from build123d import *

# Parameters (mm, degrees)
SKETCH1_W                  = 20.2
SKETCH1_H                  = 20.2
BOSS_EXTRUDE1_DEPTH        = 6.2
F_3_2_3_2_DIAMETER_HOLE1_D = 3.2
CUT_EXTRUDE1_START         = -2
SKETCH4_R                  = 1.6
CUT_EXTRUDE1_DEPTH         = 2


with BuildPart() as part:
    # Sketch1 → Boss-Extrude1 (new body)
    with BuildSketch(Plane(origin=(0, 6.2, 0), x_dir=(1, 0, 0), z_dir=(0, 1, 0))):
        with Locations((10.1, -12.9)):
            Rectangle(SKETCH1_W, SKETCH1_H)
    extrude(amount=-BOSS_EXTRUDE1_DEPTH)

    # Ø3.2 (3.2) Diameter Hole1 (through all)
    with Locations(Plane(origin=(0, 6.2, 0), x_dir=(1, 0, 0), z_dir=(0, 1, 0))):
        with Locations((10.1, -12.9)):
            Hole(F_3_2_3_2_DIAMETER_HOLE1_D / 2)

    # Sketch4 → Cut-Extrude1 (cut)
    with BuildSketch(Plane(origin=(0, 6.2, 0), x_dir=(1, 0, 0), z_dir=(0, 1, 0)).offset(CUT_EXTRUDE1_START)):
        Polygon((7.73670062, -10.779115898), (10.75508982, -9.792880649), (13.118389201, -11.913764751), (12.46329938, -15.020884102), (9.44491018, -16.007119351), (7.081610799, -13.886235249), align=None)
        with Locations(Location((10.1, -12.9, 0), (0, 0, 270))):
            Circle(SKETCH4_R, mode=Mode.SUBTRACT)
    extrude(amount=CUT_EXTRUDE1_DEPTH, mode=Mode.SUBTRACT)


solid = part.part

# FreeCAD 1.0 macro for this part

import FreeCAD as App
import Part
import Sketcher
Q = App.Units.Quantity

doc = App.newDocument("Part")
body = doc.addObject("PartDesign::Body", "Body")

# Sketch on XZ plane
sketch1 = body.newObject("Sketcher::SketchObject", "Sketch")
sketch1.AttachmentSupport = (doc.getObject("XZ_Plane"), [""])
sketch1.MapMode = "FlatFace"
sketch1.AttachmentOffset = App.Placement(App.Vector(0, 0, -6.2), App.Rotation())
sketch1.addGeometry(Part.LineSegment(App.Vector(0, 3, 0), App.Vector(0, 23, 0)), False)
sketch1.addGeometry(Part.LineSegment(App.Vector(0, 23, 0), App.Vector(20, 23, 0)), False)
sketch1.addGeometry(Part.LineSegment(App.Vector(20, 23, 0), App.Vector(20, 3, 0)), False)
sketch1.addGeometry(Part.LineSegment(App.Vector(20, 3, 0), App.Vector(0, 3, 0)), False)
sketch1.addConstraint(Sketcher.Constraint("Coincident", 0, 2, 1, 1))
sketch1.addConstraint(Sketcher.Constraint("Coincident", 1, 2, 2, 1))
sketch1.addConstraint(Sketcher.Constraint("Coincident", 2, 2, 3, 1))
sketch1.addConstraint(Sketcher.Constraint("Coincident", 3, 2, 0, 1))
sketch1.addConstraint(Sketcher.Constraint("Vertical", 0))
sketch1.addConstraint(Sketcher.Constraint("Horizontal", 1))
sketch1.addConstraint(Sketcher.Constraint("Vertical", 2))
sketch1.addConstraint(Sketcher.Constraint("Horizontal", 3))
sketch1.addConstraint(Sketcher.Constraint("PointOnObject", 0, 2, -2))
sketch1.addConstraint(Sketcher.Constraint("Equal", 3, 0))
sketch1.addConstraint(Sketcher.Constraint("DistanceX", 1, 1, 1, 2, Q("20.2 mm")))
sketch1.addConstraint(Sketcher.Constraint("DistanceY", -1, 1, 0, 2, Q("23 mm")))
pad1 = body.newObject("PartDesign::Pad", "Pad")
pad1.Profile = sketch1
pad1.Length = 6.2

# Sketch on XZ plane
sketch2 = body.newObject("Sketcher::SketchObject", "Sketch001")
sketch2.AttachmentSupport = (doc.getObject("XZ_Plane"), [""])
sketch2.MapMode = "FlatFace"
sketch2.AttachmentOffset = App.Placement(App.Vector(0, 0, -6.2), App.Rotation())
sketch2.addGeometry(Part.Circle(App.Vector(10.1, 12.9, 0), App.Vector(0, 0, 1), 1.6), False)
sketch2.addConstraint(Sketcher.Constraint("Diameter", 0, Q("3.2 mm")))
sketch2.addConstraint(Sketcher.Constraint("DistanceX", -1, 1, 0, 3, Q("10.1 mm")))
sketch2.addConstraint(Sketcher.Constraint("DistanceY", -1, 1, 0, 3, Q("12.9 mm")))
doc.recompute()
hole = body.newObject("PartDesign::Hole", "Hole")
hole.Profile = sketch2
hole.ThreadType = "None"
hole.Diameter = 3.2
hole.DepthType = "ThroughAll"
hole.Reversed = True

# Sketch on XZ plane
sketch3 = body.newObject("Sketcher::SketchObject", "Sketch002")
sketch3.AttachmentSupport = (doc.getObject("XZ_Plane"), [""])
sketch3.MapMode = "FlatFace"
sketch3.AttachmentOffset = App.Placement(App.Vector(0, 0, -4.2), App.Rotation())
sketch3.addGeometry(Part.LineSegment(App.Vector(10.8, 9.8, 0), App.Vector(7.7, 10.8, 0)), False)
sketch3.addGeometry(Part.LineSegment(App.Vector(7.7, 10.8, 0), App.Vector(7.1, 13.9, 0)), False)
sketch3.addGeometry(Part.LineSegment(App.Vector(7.1, 13.9, 0), App.Vector(9.4, 16, 0)), False)
sketch3.addGeometry(Part.LineSegment(App.Vector(9.4, 16, 0), App.Vector(12.5, 15, 0)), False)
sketch3.addGeometry(Part.LineSegment(App.Vector(12.5, 15, 0), App.Vector(13.1, 11.9, 0)), False)
sketch3.addGeometry(Part.LineSegment(App.Vector(13.1, 11.9, 0), App.Vector(10.8, 9.8, 0)), False)
sketch3.addGeometry(Part.Circle(App.Vector(10.1, 12.9, 0), App.Vector(0, 0, 1), 1.6), False)
sketch3.addConstraint(Sketcher.Constraint("Coincident", 0, 2, 1, 1))
sketch3.addConstraint(Sketcher.Constraint("Coincident", 1, 2, 2, 1))
sketch3.addConstraint(Sketcher.Constraint("Coincident", 2, 2, 3, 1))
sketch3.addConstraint(Sketcher.Constraint("Coincident", 3, 2, 4, 1))
sketch3.addConstraint(Sketcher.Constraint("Coincident", 4, 2, 5, 1))
sketch3.addConstraint(Sketcher.Constraint("Coincident", 5, 2, 0, 1))
sketch3.addConstraint(Sketcher.Constraint("Parallel", 0, 3))
sketch3.addConstraint(Sketcher.Constraint("Parallel", 1, 4))
sketch3.addConstraint(Sketcher.Constraint("Parallel", 2, 5))
sketch3.addConstraint(Sketcher.Constraint("Equal", 0, 1))
sketch3.addConstraint(Sketcher.Constraint("Equal", 1, 2))
sketch3.addConstraint(Sketcher.Constraint("Equal", 2, 3))
sketch3.addConstraint(Sketcher.Constraint("Diameter", 6, Q("3.2 mm")))
sketch3.addConstraint(Sketcher.Constraint("DistanceX", -1, 1, 6, 3, Q("10.1 mm")))
sketch3.addConstraint(Sketcher.Constraint("DistanceY", -1, 1, 6, 3, Q("12.9 mm")))
sketch3.addConstraint(Sketcher.Constraint("DistanceX", -1, 1, 0, 2, Q("7.736701 mm")))
sketch3.addConstraint(Sketcher.Constraint("DistanceX", -1, 1, 3, 2, Q("12.463299 mm")))
sketch3.addConstraint(Sketcher.Constraint("DistanceX", 1, 2, 2, 2, Q("2.363299 mm")))
sketch3.addConstraint(Sketcher.Constraint("DistanceX", -1, 1, 1, 2, Q("7.081611 mm")))
sketch3.addConstraint(Sketcher.Constraint("DistanceY", -1, 1, 2, 2, Q("16.007119 mm")))
sketch3.addConstraint(Sketcher.Constraint("DistanceY", -1, 1, 5, 2, Q("9.792881 mm")))
pocket1 = body.newObject("PartDesign::Pocket", "Pocket")
pocket1.Profile = sketch3
pocket1.Length = 2

doc.recompute()
